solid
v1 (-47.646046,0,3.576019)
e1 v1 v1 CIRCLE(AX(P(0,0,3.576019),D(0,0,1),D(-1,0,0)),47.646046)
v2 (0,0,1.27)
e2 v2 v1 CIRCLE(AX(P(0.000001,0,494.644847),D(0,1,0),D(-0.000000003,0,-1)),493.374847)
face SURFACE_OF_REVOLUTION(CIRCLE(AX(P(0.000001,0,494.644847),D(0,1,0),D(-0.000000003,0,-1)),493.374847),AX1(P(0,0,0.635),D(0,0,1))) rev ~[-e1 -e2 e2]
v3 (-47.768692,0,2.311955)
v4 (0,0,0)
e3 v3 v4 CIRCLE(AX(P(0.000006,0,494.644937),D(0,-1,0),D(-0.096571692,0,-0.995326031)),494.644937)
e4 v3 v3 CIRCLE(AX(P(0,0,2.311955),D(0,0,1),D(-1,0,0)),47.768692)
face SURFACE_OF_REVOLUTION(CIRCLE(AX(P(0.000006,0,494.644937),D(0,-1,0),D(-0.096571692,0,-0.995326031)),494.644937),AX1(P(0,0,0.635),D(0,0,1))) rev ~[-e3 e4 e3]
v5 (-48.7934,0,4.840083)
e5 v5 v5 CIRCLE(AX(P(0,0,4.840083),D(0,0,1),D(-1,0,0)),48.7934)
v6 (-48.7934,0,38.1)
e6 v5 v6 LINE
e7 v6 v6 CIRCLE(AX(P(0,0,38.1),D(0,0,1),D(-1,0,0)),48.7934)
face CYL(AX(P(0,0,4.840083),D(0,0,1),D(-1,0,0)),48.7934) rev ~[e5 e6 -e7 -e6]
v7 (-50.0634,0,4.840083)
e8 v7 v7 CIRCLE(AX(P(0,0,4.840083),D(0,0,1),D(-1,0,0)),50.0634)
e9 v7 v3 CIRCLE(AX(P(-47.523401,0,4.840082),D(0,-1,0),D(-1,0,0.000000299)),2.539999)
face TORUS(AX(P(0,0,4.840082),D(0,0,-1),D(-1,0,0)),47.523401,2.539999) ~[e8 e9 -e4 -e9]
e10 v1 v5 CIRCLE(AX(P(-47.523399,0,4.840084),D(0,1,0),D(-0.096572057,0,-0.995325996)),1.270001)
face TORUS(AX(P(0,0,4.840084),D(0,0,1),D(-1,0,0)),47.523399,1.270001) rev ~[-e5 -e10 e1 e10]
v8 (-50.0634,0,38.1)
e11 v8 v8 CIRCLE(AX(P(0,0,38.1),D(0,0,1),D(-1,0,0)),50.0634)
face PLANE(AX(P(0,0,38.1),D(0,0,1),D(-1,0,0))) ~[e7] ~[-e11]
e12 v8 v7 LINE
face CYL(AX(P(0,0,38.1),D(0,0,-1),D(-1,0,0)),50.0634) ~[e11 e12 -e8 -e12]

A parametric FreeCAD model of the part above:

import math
import FreeCAD as App
import Part
import Sketcher
Q = App.Units.Quantity

doc = App.newDocument("Part")
body = doc.addObject("PartDesign::Body", "Body")

sketch1 = body.newObject("Sketcher::SketchObject", "Sketch")
sketch1.AttachmentSupport = (doc.getObject("XZ_Plane"), [""])
sketch1.MapMode = "FlatFace"
sketch1.addGeometry([
    Part.LineSegment(App.Vector(-48.8, 4.8, 0), App.Vector(-48.8, 38.1, 0)),
    Part.LineSegment(App.Vector(-48.8, 38.1, 0), App.Vector(-50.1, 38.1, 0)),
    Part.LineSegment(App.Vector(-50.1, 38.1, 0), App.Vector(-50.1, 4.8, 0)),
    Part.ArcOfCircle(Part.Circle(App.Vector(-47.5, 4.8, 0), App.Vector(0, 0, 1), 2.5), math.radians(180), math.radians(264)),
    Part.ArcOfCircle(Part.Circle(App.Vector(0, 494.6, 0), App.Vector(0, 0, 1), 494.6), math.radians(-95.54), math.radians(-90)),
    Part.LineSegment(App.Vector(0, 0, 0), App.Vector(0, 1.3, 0)),
    Part.ArcOfCircle(Part.Circle(App.Vector(0, 494.6, 0), App.Vector(0, 0, 1), 493.4), math.radians(-95.54), math.radians(-90)),
    Part.ArcOfCircle(Part.Circle(App.Vector(-47.5, 4.8, 0), App.Vector(0, 0, 1), 1.3), math.radians(-180), math.radians(-96)),
], False)
sketch1.addConstraint([
    Sketcher.Constraint("Coincident", 0, 2, 1, 1),
    Sketcher.Constraint("Coincident", 1, 2, 2, 1),
    Sketcher.Constraint("Tangent", 2, 2, 3, 1),
    Sketcher.Constraint("Tangent", 3, 2, 4, 1),
    Sketcher.Constraint("Coincident", 4, 2, 5, 1),
    Sketcher.Constraint("Coincident", 5, 2, 6, 2),
    Sketcher.Constraint("Tangent", 6, 1, 7, 2),
    Sketcher.Constraint("Tangent", 7, 1, 0, 1),
    Sketcher.Constraint("Vertical", 0),
    Sketcher.Constraint("Horizontal", 1),
    Sketcher.Constraint("Vertical", 2),
    Sketcher.Constraint("Vertical", 5),
    Sketcher.Constraint("Coincident", 7, 3, 3, 3),
    Sketcher.Constraint("PointOnObject", 6, 3, -2),
    Sketcher.Constraint("PointOnObject", 5, 2, -2),
    Sketcher.Constraint("Equal", 1, 5),
    Sketcher.Constraint("Radius", 3, Q("0.1 in")),
    Sketcher.Constraint("Radius", 7, Q("0.05 in")),
    Sketcher.Constraint("DistanceY", -1, 1, 0, 2, Q("1.5 in")),
    Sketcher.Constraint("DistanceY", 4, 2, 0, 2, Q("1.5 in")),
    Sketcher.Constraint("DistanceX", 3, 3, -1, 1, Q("1.871 in")),
    Sketcher.Constraint("Radius", 4, Q("494.644937 mm")),
    Sketcher.Constraint("Radius", 6, Q("493.374847 mm")),
])
revolution = body.newObject("PartDesign::Revolution", "Revolution")
revolution.Profile = sketch1
revolution.ReferenceAxis = (sketch1, ["V_Axis"])
revolution.Angle = 360

doc.recompute()
